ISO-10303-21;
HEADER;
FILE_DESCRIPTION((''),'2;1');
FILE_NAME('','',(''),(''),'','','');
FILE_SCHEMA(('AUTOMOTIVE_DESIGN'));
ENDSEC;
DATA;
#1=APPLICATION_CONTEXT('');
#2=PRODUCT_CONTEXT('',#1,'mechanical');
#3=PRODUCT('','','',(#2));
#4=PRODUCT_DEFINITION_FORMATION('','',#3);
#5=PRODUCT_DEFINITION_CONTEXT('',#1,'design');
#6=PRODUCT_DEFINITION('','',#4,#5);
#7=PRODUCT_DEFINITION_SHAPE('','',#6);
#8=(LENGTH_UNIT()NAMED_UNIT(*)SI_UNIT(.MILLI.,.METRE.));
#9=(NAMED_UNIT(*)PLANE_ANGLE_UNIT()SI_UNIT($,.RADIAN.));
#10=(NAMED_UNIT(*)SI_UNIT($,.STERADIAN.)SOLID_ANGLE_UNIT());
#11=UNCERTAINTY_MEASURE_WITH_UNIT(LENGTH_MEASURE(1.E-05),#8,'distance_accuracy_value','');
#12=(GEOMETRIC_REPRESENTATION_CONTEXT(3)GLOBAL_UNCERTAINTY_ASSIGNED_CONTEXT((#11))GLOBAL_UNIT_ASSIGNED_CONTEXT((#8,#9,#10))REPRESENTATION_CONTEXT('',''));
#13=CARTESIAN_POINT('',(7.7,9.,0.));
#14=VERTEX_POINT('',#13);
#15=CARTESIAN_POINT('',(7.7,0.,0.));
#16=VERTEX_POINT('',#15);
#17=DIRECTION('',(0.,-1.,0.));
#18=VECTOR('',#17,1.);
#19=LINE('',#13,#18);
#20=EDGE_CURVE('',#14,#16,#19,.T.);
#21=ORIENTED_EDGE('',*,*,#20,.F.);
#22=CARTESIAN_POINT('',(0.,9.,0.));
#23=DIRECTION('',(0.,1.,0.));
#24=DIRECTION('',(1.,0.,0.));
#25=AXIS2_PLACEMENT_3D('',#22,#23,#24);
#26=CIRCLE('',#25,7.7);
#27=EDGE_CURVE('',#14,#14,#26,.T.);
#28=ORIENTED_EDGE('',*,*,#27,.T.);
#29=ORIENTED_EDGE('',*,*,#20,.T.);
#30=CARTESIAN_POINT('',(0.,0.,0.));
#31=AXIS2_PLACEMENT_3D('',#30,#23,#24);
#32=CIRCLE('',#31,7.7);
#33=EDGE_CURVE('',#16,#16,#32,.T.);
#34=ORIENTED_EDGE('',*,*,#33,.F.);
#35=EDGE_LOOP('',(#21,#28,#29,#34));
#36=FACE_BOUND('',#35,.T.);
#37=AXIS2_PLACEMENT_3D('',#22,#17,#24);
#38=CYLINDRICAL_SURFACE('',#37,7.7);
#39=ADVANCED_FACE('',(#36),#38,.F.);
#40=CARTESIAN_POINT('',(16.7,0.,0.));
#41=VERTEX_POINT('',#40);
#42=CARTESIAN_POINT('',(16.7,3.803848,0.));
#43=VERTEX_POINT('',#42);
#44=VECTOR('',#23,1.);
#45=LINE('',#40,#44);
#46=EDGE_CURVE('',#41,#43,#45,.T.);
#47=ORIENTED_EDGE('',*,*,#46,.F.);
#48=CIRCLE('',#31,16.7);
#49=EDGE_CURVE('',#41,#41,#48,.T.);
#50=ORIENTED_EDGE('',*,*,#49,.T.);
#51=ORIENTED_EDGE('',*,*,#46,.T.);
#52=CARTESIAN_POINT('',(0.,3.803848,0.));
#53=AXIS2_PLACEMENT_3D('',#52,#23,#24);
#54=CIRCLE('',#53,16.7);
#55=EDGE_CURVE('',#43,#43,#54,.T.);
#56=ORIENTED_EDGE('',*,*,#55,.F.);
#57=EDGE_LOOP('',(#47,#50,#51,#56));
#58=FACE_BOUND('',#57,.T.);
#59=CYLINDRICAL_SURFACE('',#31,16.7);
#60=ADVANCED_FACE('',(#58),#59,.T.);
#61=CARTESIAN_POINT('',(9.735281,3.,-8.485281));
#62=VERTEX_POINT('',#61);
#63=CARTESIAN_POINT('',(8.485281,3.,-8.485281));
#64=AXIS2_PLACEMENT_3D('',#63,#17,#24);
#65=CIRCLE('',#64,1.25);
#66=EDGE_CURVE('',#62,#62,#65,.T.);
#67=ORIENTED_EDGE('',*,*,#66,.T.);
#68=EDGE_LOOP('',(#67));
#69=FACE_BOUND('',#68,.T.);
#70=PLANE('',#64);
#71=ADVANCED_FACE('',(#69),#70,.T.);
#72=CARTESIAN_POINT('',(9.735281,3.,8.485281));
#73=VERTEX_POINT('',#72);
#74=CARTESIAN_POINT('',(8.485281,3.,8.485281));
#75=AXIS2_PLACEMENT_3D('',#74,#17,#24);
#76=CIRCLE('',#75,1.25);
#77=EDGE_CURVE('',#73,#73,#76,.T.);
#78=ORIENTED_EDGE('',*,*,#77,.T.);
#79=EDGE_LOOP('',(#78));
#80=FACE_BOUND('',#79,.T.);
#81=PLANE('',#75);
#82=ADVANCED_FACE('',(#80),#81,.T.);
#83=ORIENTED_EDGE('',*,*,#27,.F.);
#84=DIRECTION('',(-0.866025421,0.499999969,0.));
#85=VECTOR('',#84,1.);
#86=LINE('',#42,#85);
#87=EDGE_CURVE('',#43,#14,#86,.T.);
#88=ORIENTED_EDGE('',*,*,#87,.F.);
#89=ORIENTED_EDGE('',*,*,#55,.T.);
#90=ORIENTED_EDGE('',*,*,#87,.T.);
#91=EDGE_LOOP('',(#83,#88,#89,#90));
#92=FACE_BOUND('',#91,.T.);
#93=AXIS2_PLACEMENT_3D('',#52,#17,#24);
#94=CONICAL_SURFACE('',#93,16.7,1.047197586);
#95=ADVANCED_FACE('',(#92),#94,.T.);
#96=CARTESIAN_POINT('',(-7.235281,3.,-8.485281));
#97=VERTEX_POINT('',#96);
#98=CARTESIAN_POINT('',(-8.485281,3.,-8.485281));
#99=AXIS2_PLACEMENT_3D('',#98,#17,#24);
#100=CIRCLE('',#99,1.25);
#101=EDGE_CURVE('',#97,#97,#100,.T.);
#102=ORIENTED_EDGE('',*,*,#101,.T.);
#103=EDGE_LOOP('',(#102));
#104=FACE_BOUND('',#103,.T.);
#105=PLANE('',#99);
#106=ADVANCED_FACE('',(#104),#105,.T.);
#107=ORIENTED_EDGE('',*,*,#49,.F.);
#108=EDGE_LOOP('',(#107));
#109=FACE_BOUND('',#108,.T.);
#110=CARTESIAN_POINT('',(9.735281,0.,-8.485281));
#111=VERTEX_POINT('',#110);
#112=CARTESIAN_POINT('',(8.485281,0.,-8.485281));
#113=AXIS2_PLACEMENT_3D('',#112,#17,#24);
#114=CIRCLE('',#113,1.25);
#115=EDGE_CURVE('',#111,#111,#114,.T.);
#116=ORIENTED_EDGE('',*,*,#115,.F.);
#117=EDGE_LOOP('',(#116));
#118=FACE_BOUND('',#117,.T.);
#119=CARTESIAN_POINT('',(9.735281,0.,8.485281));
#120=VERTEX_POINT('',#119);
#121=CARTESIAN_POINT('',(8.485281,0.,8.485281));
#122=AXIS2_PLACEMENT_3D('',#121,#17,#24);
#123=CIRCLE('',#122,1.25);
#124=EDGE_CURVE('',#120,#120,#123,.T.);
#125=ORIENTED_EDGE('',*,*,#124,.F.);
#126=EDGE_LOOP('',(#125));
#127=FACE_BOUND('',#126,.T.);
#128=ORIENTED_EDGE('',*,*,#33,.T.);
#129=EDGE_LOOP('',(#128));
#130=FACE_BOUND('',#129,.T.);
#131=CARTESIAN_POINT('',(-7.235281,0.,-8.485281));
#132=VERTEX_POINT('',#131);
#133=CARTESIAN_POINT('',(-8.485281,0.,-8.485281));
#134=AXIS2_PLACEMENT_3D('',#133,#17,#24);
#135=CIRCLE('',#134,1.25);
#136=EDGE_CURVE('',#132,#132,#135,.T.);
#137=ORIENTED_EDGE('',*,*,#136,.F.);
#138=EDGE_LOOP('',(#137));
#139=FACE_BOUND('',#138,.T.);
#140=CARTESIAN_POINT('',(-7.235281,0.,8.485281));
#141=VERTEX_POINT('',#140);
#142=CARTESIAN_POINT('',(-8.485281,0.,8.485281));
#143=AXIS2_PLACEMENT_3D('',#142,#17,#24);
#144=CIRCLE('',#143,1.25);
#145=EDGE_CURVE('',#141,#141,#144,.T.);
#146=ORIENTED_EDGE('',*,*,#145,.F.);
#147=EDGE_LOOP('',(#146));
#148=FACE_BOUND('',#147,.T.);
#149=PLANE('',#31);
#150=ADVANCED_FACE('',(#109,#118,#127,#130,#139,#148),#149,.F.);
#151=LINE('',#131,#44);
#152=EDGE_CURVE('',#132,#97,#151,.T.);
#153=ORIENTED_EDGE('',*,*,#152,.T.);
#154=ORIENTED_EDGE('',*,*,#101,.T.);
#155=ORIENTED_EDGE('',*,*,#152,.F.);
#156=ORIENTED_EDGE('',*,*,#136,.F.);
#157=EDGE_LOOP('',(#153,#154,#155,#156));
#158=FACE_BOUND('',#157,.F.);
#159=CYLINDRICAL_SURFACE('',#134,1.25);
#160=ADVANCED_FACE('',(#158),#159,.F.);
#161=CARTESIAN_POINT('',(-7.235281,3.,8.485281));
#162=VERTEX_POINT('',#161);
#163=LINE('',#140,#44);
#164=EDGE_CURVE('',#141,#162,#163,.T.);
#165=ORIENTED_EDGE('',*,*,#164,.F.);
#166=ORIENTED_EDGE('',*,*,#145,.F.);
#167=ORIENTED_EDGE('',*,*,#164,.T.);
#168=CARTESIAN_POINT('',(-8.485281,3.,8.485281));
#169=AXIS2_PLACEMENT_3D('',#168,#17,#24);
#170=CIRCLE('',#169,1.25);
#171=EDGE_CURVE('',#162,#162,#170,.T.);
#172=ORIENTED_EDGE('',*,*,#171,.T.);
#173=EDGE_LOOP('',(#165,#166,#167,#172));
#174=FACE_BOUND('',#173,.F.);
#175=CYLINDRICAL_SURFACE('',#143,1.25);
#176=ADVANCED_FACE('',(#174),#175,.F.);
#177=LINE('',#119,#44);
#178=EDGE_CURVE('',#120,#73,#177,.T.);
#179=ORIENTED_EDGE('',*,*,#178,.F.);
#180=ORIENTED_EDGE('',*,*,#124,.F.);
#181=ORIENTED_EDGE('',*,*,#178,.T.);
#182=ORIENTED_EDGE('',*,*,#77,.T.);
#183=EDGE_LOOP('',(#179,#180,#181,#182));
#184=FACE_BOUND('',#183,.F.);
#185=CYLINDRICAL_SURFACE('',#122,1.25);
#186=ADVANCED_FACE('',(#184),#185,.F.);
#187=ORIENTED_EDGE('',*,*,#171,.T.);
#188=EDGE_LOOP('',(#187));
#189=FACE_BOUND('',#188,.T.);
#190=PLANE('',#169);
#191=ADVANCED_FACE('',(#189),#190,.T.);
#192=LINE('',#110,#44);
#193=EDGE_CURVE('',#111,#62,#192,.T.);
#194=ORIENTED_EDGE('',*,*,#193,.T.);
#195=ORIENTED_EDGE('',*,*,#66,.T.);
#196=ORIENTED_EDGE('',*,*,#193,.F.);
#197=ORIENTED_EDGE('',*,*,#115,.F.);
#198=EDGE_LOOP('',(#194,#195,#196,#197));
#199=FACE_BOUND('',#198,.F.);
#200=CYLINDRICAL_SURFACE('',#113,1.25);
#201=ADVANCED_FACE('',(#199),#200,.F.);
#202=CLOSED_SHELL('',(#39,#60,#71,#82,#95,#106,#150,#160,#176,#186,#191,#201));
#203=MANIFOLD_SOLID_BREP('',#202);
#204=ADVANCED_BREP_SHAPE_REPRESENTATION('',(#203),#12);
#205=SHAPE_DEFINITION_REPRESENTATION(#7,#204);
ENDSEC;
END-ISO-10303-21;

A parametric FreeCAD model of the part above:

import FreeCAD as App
import Part
import Sketcher
from FreeCAD import Vector
Q = App.Units.Quantity


def add_polygon(sketch, points):
    """Adds a closed chain of lines whose ends are joined by coincident constraints."""
    first, n = sketch.GeometryCount, len(points)
    for a, b in zip(points, points[1:] + points[:1]):
        sketch.addGeometry(Part.LineSegment(App.Vector(*a, 0), App.Vector(*b, 0)), False)
    for i in range(n):
        sketch.addConstraint(Sketcher.Constraint("Coincident", first + i, 2, first + (i + 1) % n, 1))

doc = App.newDocument("Part")
params = doc.addObject("Spreadsheet::Sheet", "Params")
for row, (alias, value) in enumerate([
    ("sketch1_width", "9 mm"),
    ("revolution_angle", "360 deg"),
    ("sketch2_diameter", "2.5 mm"),
    ("pocket1_length", "3 mm"),
], start=1):
    params.set(f"A{row}", alias)
    params.set(f"B{row}", "=" + value)
    params.setAlias(f"B{row}", alias)

body = doc.addObject("PartDesign::Body", "Body")

# Sketch on XY plane
sketch1 = body.newObject("Sketcher::SketchObject", "Sketch")
sketch1.AttachmentSupport = (doc.getObject("XY_Plane"), [""])
sketch1.MapMode = "FlatFace"
add_polygon(sketch1, [(7.7, 0), (16.7, 0), (16.7, 3.8), (7.7, 9)])  # lines 0-3
sketch1.addConstraint([
    Sketcher.Constraint("Horizontal", 0),
    Sketcher.Constraint("Vertical", 1),
    Sketcher.Constraint("Vertical", 3),
    Sketcher.Constraint("PointOnObject", 0, 2, -1),
    Sketcher.Constraint("Equal", 0, 3),
    Sketcher.Constraint("DistanceX", 0, 1, 0, 2, Q("9 mm")),
    Sketcher.Constraint("Angle", 2, Q("150.000002 deg")),
    Sketcher.Constraint("DistanceX", -1, 1, 0, 2, Q("16.7 mm")),
])
sketch1.setExpression("Constraints[9]", "Params.sketch1_width")
revolution = body.newObject("PartDesign::Revolution", "Revolution")
revolution.Profile = sketch1
revolution.ReferenceAxis = (sketch1, ["V_Axis"])
revolution.setExpression("Angle", "Params.revolution_angle")

# Sketch on XZ plane
sketch2 = body.newObject("Sketcher::SketchObject", "Sketch001")
sketch2.AttachmentSupport = (doc.getObject("XZ_Plane"), [""])
sketch2.MapMode = "FlatFace"
sketch2.addGeometry([
    Part.Circle(Vector(-8.5, 8.5, 0), Vector(0, 0, 1), 1.2),
    Part.Circle(Vector(8.5, 8.5, 0), Vector(0, 0, 1), 1.2),
    Part.Circle(Vector(8.5, -8.5, 0), Vector(0, 0, 1), 1.2),
    Part.Circle(Vector(-8.5, -8.5, 0), Vector(0, 0, 1), 1.2),
], False)
sketch2.addConstraint([
    Sketcher.Constraint("Equal", 0, 1),
    Sketcher.Constraint("Equal", 1, 2),
    Sketcher.Constraint("Equal", 2, 3),
    Sketcher.Constraint("Symmetric", 0, 3, 2, 3, -1, 1),
    Sketcher.Constraint("Symmetric", 1, 3, 3, 3, -1, 1),
    Sketcher.Constraint("Symmetric", 0, 3, 1, 3, -2),
    Sketcher.Constraint("Diameter", 0, Q("2.5 mm")),
    Sketcher.Constraint("DistanceX", 0, 3, -1, 1, Q("8.485281 mm")),
    Sketcher.Constraint("DistanceY", -1, 1, 0, 3, Q("8.485281 mm")),
])
sketch2.setExpression("Constraints[6]", "Params.sketch2_diameter")
pocket1 = body.newObject("PartDesign::Pocket", "Pocket")
pocket1.Profile = sketch2
pocket1.setExpression("Length", "Params.pocket1_length")

doc.recompute()
